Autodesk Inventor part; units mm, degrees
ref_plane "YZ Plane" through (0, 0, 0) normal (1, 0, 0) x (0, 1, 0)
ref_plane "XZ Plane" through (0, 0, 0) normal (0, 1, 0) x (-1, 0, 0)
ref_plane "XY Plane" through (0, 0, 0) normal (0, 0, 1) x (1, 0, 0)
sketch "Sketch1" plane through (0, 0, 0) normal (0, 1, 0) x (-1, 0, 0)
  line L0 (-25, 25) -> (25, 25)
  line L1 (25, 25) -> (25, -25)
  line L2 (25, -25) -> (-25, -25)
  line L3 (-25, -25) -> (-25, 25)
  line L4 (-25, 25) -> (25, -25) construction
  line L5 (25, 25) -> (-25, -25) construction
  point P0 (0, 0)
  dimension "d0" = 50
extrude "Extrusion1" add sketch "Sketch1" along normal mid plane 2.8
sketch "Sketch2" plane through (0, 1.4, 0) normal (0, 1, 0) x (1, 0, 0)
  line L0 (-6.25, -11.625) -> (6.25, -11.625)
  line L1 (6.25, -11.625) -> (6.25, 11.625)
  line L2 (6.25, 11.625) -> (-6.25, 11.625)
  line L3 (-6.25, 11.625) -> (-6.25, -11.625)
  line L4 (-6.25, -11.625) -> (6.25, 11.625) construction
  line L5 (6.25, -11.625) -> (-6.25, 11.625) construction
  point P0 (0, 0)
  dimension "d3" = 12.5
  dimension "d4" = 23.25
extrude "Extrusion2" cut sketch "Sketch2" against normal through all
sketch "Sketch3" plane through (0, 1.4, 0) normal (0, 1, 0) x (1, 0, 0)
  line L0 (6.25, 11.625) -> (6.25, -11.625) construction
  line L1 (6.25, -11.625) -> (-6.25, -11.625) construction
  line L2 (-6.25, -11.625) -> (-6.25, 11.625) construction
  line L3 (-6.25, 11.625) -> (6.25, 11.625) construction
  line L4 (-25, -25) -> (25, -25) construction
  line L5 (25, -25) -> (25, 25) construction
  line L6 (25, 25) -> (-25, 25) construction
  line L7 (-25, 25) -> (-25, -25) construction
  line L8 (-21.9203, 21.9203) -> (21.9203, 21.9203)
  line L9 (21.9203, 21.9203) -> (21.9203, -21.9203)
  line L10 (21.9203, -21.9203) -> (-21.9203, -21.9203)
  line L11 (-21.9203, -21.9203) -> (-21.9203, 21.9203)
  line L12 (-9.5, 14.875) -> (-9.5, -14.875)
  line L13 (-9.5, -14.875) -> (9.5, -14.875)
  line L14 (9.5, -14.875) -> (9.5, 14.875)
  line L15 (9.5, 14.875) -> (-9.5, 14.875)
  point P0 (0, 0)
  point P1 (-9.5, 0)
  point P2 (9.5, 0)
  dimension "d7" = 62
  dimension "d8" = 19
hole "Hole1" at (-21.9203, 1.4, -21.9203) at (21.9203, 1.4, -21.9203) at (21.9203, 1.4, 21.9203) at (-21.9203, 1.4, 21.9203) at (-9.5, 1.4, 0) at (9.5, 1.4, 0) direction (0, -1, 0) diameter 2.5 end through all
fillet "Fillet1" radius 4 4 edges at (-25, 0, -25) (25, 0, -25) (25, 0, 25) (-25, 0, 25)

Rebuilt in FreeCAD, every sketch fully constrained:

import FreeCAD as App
import Part
import Sketcher

V = App.Vector
Q = App.Units.Quantity


def edges_at(feature, points):
    """Names of the edges that pass closest to the given points."""
    edges = feature.Shape.Edges
    near = lambda p: min(range(len(edges)), key=lambda i: edges[i].distToShape(Part.Vertex(*p))[0])
    return sorted({f"Edge{near(p) + 1}" for p in points})


def add_polygon(sketch, points):
    """Adds a closed chain of lines whose ends are joined by coincident constraints."""
    first, n = sketch.GeometryCount, len(points)
    for a, b in zip(points, points[1:] + points[:1]):
        sketch.addGeometry(Part.LineSegment(App.Vector(*a, 0), App.Vector(*b, 0)), False)
    for i in range(n):
        sketch.addConstraint(Sketcher.Constraint("Coincident", first + i, 2, first + (i + 1) % n, 1))

doc = App.newDocument("Part")
body = doc.addObject("PartDesign::Body", "Body")

# Sketch on XZ plane
sketch1 = body.newObject("Sketcher::SketchObject", "Sketch")
sketch1.AttachmentSupport = (doc.getObject("XZ_Plane"), [""])
sketch1.MapMode = "FlatFace"
add_polygon(sketch1, [(-25, 25), (25, 25), (25, -25), (-25, -25)])  # lines 0-3
sketch1.addConstraint([
    Sketcher.Constraint("Horizontal", 0),
    Sketcher.Constraint("Vertical", 1),
    Sketcher.Constraint("Horizontal", 2),
    Sketcher.Constraint("Vertical", 3),
    Sketcher.Constraint("Symmetric", 0, 2, 2, 2, -1, 1),
    Sketcher.Constraint("Equal", 2, 1),
    Sketcher.Constraint("DistanceX", 0, 1, 0, 2, Q("50 mm")),
])
pad1 = body.newObject("PartDesign::Pad", "Pad")
pad1.Profile = sketch1
pad1.Length = 2.8
pad1.Midplane = True

# Sketch on XZ plane
sketch2 = body.newObject("Sketcher::SketchObject", "Sketch001")
sketch2.AttachmentSupport = (doc.getObject("XZ_Plane"), [""])
sketch2.MapMode = "FlatFace"
sketch2.AttachmentOffset = App.Placement(V(0, 0, -1.4), App.Rotation())
add_polygon(sketch2, [(-6, -12), (-6, 12), (6, 12), (6, -12)])  # lines 0-3
sketch2.addConstraint([
    Sketcher.Constraint("Vertical", 0),
    Sketcher.Constraint("Horizontal", 1),
    Sketcher.Constraint("Vertical", 2),
    Sketcher.Constraint("Horizontal", 3),
    Sketcher.Constraint("Symmetric", 0, 2, 2, 2, -1, 1),
    Sketcher.Constraint("DistanceX", 1, 1, 1, 2, Q("12.5 mm")),
    Sketcher.Constraint("DistanceY", 0, 1, 0, 2, Q("23.25 mm")),
])
pocket1 = body.newObject("PartDesign::Pocket", "Pocket")
pocket1.Profile = sketch2
pocket1.Type = "ThroughAll"
pocket1.Reversed = True

# Sketch on XZ plane
sketch3 = body.newObject("Sketcher::SketchObject", "Sketch002")
sketch3.AttachmentSupport = (doc.getObject("XZ_Plane"), [""])
sketch3.MapMode = "FlatFace"
sketch3.AttachmentOffset = App.Placement(V(0, 0, -1.4), App.Rotation())
sketch3.addGeometry([
    Part.Circle(V(-21.9, -21.9, 0), V(0, 0, 1), 1.2),  # 0
    Part.Circle(V(21.9, -21.9, 0), V(0, 0, 1), 1.2),  # 1
    Part.Circle(V(21.9, 21.9, 0), V(0, 0, 1), 1.2),  # 2
    Part.Circle(V(-21.9, 21.9, 0), V(0, 0, 1), 1.2),  # 3
    Part.Circle(V(-9.5, 0, 0), V(0, 0, 1), 1.2),  # 4
    Part.Circle(V(9.5, 0, 0), V(0, 0, 1), 1.2),  # 5
], False)
sketch3.addConstraint([
    Sketcher.Constraint("Equal", 0, 1),
    Sketcher.Constraint("Equal", 1, 2),
    Sketcher.Constraint("Equal", 2, 3),
    Sketcher.Constraint("Equal", 3, 4),
    Sketcher.Constraint("Equal", 4, 5),
    Sketcher.Constraint("Symmetric", 0, 3, 2, 3, -1, 1),
    Sketcher.Constraint("Symmetric", 1, 3, 3, 3, -1, 1),
    Sketcher.Constraint("Symmetric", 4, 3, 5, 3, -1, 1),
    Sketcher.Constraint("Symmetric", 0, 3, 1, 3, -2),
    Sketcher.Constraint("PointOnObject", 4, 3, -1),
    Sketcher.Constraint("Diameter", 0, Q("2.5 mm")),
    Sketcher.Constraint("DistanceX", 4, 3, 5, 3, Q("19 mm")),
    Sketcher.Constraint("DistanceX", 0, 3, -1, 1, Q("21.9203 mm")),
    Sketcher.Constraint("DistanceY", 0, 3, -1, 1, Q("21.9203 mm")),
])
doc.recompute()
hole = body.newObject("PartDesign::Hole", "Hole")
hole.Profile = sketch3
hole.ThreadType = "None"
hole.Diameter = 2.5
hole.DepthType = "ThroughAll"
hole.Reversed = True
doc.recompute()

fillet = body.newObject("PartDesign::Fillet", "Fillet")
fillet.Base = (hole, edges_at(hole, [
    (-25, 0, -25),
    (25, 0, -25),
    (25, 0, 25),
    (-25, 0, 25),
]))
fillet.Radius = 4

doc.recompute()
